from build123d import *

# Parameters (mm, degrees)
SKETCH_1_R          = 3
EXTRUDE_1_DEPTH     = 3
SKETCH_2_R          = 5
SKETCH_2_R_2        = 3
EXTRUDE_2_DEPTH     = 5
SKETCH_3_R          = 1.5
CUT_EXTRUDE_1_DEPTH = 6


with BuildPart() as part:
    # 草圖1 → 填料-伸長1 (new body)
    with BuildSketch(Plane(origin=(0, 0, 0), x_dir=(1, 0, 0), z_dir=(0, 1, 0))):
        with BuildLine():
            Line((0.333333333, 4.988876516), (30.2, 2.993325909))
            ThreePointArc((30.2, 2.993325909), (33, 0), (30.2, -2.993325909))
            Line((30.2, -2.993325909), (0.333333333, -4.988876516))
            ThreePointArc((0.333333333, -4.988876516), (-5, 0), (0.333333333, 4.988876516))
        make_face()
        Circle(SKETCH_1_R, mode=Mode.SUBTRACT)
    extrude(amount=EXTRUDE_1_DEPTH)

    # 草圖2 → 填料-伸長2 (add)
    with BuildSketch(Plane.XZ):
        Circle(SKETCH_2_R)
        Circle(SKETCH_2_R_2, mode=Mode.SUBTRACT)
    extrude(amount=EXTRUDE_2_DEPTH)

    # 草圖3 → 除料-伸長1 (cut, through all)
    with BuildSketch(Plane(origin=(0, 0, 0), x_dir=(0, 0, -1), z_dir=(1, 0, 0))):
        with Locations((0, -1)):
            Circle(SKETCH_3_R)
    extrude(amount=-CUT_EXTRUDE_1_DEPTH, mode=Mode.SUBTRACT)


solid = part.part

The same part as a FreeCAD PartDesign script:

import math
import FreeCAD as App
import Part
import Sketcher

doc = App.newDocument("Part")
body = doc.addObject("PartDesign::Body", "Body")

# Sketch on XZ plane
sketch1 = body.newObject("Sketcher::SketchObject", "Sketch")
sketch1.AttachmentSupport = (doc.getObject("XZ_Plane"), [""])
sketch1.MapMode = "FlatFace"
sketch1.addGeometry([
    Part.LineSegment(App.Vector(30.2, -3, 0), App.Vector(0.3, -5, 0)),  # 0
    Part.ArcOfCircle(Part.Circle(App.Vector(0, 0, 0), App.Vector(0, 0, 1), 5), math.radians(86), math.radians(274)),  # 1
    Part.LineSegment(App.Vector(0.3, 5, 0), App.Vector(30.2, 3, 0)),  # 2
    Part.ArcOfCircle(Part.Circle(App.Vector(30, 0, 0), App.Vector(0, 0, 1), 3), math.radians(-86), math.radians(86)),  # 3
    Part.Circle(App.Vector(0, 0, 0), App.Vector(0, 0, 1), 3),  # 4
], False)
sketch1.addConstraint([
    Sketcher.Constraint("Tangent", 0, 2, 1, 2),
    Sketcher.Constraint("Tangent", 1, 1, 2, 1),
    Sketcher.Constraint("Tangent", 2, 2, 3, 2),
    Sketcher.Constraint("Tangent", 3, 1, 0, 1),
    Sketcher.Constraint("Coincident", 1, 3, -1, 1),
    Sketcher.Constraint("Coincident", 4, 3, -1, 1),
    Sketcher.Constraint("Equal", 3, 4),
    Sketcher.Constraint("PointOnObject", 3, 3, -1),
    Sketcher.Constraint("Diameter", 4, 6.0),
    Sketcher.Constraint("Radius", 1, 5.0),
    Sketcher.Constraint("DistanceX", -1, 1, 3, 3, 30.0),
])
pad1 = body.newObject("PartDesign::Pad", "Pad")
pad1.Profile = sketch1
pad1.Length = 3
pad1.Reversed = True

# Sketch on XZ plane
sketch2 = body.newObject("Sketcher::SketchObject", "Sketch001")
sketch2.AttachmentSupport = (doc.getObject("XZ_Plane"), [""])
sketch2.MapMode = "FlatFace"
sketch2.addGeometry([
    Part.Circle(App.Vector(0, 0, 0), App.Vector(0, 0, 1), 5),
    Part.Circle(App.Vector(0, 0, 0), App.Vector(0, 0, 1), 3),
], False)
sketch2.addConstraint([
    Sketcher.Constraint("Coincident", 0, 3, -1, 1),
    Sketcher.Constraint("Coincident", 1, 3, -1, 1),
    Sketcher.Constraint("Diameter", 0, 10.0),
    Sketcher.Constraint("Diameter", 1, 6.0),
])
pad2 = body.newObject("PartDesign::Pad", "Pad001")
pad2.Profile = sketch2
pad2.Length = 5

# Sketch on YZ plane
sketch3 = body.newObject("Sketcher::SketchObject", "Sketch002")
sketch3.AttachmentSupport = (doc.getObject("YZ_Plane"), [""])
sketch3.MapMode = "FlatFace"
sketch3.addGeometry(Part.Circle(App.Vector(-1, 0, 0), App.Vector(0, 0, 1), 1.5), False)
sketch3.addConstraint([
    Sketcher.Constraint("PointOnObject", 0, 3, -1),
    Sketcher.Constraint("Diameter", 0, 3.0),
    Sketcher.Constraint("DistanceX", 0, 3, -1, 1, 1.0),
])
pocket1 = body.newObject("PartDesign::Pocket", "Pocket")
pocket1.Profile = sketch3
pocket1.Type = "ThroughAll"

doc.recompute()
